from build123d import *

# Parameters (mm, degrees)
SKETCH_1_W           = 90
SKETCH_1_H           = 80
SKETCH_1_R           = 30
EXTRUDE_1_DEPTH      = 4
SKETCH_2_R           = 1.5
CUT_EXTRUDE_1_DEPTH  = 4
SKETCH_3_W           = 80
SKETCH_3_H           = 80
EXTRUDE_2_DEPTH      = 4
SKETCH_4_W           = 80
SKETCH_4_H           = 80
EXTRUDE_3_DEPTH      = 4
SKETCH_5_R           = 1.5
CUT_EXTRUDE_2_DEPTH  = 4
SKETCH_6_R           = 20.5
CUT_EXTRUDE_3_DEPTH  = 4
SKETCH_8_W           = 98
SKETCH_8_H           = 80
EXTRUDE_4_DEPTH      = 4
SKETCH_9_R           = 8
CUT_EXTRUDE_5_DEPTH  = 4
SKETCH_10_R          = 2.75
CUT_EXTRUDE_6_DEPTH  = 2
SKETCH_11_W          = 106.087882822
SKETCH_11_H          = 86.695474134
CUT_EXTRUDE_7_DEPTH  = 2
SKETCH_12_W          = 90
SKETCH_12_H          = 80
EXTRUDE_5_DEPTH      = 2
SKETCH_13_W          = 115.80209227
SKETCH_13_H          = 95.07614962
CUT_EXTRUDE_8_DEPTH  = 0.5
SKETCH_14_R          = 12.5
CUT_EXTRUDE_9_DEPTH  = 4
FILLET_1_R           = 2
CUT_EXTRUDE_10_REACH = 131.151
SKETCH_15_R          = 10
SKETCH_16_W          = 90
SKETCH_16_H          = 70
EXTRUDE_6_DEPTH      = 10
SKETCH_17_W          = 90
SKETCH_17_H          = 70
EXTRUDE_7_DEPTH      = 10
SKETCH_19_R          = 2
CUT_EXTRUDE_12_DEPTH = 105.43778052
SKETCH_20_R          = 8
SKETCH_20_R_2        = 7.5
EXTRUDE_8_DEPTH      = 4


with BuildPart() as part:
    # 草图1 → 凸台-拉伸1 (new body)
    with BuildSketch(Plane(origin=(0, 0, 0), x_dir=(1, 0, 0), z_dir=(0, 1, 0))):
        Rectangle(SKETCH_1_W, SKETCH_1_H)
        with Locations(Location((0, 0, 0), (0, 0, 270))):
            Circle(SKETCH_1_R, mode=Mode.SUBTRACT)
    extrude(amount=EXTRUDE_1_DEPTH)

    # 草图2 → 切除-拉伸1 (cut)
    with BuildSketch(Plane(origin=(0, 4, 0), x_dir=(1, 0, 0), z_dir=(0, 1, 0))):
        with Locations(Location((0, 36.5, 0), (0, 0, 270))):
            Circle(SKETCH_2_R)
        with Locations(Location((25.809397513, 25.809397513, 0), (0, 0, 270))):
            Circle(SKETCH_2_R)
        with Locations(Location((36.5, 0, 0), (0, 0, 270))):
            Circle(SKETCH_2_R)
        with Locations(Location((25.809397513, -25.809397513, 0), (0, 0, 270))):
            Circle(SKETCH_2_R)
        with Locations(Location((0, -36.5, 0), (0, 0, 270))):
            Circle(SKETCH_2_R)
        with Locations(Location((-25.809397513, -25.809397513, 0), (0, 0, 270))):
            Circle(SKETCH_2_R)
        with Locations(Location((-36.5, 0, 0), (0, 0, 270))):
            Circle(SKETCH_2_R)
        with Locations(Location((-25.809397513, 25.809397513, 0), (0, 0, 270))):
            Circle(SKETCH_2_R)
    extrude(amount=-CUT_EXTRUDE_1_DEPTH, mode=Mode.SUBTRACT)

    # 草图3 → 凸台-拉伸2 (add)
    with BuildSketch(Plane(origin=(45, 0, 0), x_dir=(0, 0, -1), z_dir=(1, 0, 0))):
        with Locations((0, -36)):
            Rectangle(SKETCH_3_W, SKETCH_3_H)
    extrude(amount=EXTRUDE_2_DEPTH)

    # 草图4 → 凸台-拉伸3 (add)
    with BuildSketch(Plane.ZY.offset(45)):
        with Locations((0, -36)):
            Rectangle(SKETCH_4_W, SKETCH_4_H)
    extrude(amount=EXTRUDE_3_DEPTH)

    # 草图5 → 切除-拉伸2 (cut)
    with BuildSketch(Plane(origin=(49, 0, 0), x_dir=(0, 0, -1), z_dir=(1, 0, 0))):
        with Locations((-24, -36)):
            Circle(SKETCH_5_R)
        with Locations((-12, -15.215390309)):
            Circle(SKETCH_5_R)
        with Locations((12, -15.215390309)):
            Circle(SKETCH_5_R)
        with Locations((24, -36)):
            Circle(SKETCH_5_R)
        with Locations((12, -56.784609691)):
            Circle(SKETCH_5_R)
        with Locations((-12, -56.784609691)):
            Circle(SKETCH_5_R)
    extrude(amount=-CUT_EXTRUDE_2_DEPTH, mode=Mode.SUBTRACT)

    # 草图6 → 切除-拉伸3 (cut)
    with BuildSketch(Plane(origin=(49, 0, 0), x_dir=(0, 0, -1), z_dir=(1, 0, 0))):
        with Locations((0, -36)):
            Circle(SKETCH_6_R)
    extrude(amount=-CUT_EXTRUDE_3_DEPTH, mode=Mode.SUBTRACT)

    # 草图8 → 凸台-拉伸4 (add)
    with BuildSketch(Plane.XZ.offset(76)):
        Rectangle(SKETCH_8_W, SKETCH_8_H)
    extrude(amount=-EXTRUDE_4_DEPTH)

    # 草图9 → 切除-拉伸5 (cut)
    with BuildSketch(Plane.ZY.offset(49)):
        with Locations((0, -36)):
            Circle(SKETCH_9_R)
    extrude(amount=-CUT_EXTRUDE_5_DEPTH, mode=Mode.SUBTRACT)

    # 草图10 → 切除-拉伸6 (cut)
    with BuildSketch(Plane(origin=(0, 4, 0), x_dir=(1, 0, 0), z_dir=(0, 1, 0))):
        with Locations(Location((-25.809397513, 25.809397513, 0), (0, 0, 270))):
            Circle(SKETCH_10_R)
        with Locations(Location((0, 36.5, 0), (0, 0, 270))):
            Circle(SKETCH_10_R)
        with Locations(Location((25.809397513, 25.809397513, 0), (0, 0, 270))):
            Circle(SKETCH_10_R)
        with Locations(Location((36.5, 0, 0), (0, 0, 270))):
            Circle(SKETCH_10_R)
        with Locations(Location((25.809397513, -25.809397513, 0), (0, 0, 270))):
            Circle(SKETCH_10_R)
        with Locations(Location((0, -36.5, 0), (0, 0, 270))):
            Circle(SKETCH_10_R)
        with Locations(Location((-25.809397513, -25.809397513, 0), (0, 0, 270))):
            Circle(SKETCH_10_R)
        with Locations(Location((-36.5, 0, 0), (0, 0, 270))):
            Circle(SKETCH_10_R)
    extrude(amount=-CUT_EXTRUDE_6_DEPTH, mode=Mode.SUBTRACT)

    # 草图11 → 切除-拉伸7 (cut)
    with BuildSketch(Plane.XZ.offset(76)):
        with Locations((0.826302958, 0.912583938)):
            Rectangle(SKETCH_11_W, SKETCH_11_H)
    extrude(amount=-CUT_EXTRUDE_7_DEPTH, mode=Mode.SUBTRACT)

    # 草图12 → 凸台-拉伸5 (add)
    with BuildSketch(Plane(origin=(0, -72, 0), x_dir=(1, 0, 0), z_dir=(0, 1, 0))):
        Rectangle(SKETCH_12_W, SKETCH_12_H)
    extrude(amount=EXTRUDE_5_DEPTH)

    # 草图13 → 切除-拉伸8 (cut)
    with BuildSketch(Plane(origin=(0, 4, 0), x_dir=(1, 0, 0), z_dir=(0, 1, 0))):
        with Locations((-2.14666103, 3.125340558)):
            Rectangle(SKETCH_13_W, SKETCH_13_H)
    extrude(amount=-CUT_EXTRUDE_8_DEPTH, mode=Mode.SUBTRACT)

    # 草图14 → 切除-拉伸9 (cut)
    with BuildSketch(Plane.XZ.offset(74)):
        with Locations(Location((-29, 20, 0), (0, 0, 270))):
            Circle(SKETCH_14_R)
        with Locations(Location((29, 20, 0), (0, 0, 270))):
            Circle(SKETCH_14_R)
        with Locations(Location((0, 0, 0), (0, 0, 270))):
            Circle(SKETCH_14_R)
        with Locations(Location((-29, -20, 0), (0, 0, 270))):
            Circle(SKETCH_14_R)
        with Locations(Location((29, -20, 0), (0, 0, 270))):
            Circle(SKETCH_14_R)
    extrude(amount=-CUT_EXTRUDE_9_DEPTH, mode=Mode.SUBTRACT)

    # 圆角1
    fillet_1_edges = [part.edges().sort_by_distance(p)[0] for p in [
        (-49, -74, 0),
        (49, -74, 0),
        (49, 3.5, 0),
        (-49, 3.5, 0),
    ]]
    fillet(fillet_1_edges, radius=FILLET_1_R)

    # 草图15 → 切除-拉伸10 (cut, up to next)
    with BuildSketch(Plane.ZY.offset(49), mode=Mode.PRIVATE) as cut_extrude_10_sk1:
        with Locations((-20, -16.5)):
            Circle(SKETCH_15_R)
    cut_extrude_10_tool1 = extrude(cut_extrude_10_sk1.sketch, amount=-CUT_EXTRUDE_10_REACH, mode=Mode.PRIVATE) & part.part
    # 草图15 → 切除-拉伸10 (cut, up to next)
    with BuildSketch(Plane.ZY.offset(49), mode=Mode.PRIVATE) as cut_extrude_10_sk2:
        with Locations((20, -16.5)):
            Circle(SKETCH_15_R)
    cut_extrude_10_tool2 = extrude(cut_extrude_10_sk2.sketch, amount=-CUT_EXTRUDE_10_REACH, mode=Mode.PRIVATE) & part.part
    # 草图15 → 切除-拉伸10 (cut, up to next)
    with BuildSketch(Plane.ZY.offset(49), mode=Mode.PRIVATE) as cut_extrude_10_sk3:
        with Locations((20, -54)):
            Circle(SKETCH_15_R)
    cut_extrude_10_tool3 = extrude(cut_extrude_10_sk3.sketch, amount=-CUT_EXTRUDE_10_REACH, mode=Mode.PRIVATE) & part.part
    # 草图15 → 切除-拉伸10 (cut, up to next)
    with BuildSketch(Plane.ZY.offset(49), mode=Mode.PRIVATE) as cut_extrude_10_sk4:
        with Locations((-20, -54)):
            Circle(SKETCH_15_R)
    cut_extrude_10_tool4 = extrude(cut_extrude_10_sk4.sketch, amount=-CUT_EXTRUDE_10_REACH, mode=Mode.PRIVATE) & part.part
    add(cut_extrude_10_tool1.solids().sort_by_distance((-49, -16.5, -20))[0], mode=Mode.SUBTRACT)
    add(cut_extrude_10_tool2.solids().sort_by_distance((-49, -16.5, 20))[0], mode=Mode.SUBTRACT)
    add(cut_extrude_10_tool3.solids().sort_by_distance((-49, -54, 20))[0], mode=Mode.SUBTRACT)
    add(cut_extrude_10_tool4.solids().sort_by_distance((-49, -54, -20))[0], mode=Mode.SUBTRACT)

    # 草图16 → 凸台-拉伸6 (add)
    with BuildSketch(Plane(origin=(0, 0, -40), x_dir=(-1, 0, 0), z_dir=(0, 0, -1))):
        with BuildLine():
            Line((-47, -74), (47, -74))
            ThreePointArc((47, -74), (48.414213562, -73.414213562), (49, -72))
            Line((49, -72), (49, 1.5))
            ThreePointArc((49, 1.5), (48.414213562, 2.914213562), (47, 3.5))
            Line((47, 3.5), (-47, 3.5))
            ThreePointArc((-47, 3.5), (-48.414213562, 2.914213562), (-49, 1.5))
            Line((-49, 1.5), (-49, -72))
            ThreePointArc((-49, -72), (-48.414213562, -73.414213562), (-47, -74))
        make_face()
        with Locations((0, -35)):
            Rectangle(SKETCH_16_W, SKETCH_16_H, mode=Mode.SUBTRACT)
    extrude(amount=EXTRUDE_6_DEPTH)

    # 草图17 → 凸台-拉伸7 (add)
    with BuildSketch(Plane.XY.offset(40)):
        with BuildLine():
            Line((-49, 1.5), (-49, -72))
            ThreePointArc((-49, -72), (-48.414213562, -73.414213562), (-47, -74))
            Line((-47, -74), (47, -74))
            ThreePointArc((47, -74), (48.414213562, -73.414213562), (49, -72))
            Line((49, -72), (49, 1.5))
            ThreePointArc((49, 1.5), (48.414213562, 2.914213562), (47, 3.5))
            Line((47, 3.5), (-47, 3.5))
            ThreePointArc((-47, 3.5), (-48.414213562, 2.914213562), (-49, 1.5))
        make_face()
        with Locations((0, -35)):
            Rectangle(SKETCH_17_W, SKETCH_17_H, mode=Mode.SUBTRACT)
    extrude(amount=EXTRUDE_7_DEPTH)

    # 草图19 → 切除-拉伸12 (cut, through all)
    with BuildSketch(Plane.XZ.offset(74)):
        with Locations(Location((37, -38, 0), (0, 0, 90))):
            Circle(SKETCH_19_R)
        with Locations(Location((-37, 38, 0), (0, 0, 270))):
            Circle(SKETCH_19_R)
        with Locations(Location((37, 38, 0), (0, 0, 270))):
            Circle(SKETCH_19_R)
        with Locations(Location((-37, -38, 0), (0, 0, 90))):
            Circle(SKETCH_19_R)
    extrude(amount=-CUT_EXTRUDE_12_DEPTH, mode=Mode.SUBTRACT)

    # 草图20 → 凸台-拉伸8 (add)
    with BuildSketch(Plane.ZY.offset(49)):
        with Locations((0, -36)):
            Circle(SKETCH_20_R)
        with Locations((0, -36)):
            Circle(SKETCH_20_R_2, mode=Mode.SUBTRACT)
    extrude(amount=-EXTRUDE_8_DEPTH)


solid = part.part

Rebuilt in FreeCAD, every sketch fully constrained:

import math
import FreeCAD as App
import Part
import Sketcher
from FreeCAD import Vector
Q = App.Units.Quantity


def edges_at(feature, points):
    """Names of the edges that pass closest to the given points."""
    edges = feature.Shape.Edges
    near = lambda p: min(range(len(edges)), key=lambda i: edges[i].distToShape(Part.Vertex(*p))[0])
    return sorted({f"Edge{near(p) + 1}" for p in points})


def add_polygon(sketch, points):
    """Adds a closed chain of lines whose ends are joined by coincident constraints."""
    first, n = sketch.GeometryCount, len(points)
    for a, b in zip(points, points[1:] + points[:1]):
        sketch.addGeometry(Part.LineSegment(App.Vector(*a, 0), App.Vector(*b, 0)), False)
    for i in range(n):
        sketch.addConstraint(Sketcher.Constraint("Coincident", first + i, 2, first + (i + 1) % n, 1))

doc = App.newDocument("Part")
body = doc.addObject("PartDesign::Body", "Body")

# Sketch on XZ plane
sketch1 = body.newObject("Sketcher::SketchObject", "Sketch")
sketch1.AttachmentSupport = (doc.getObject("XZ_Plane"), [""])
sketch1.MapMode = "FlatFace"
add_polygon(sketch1, [(-45, -40), (-45, 40), (45, 40), (45, -40)])  # lines 0-3
sketch1.addGeometry(Part.Circle(Vector(0, 0, 0), Vector(0, 0, 1), 30), False)  # 4
sketch1.addConstraint(Sketcher.Constraint("Vertical", 0))
sketch1.addConstraint(Sketcher.Constraint("Horizontal", 1))
sketch1.addConstraint(Sketcher.Constraint("Vertical", 2))
sketch1.addConstraint(Sketcher.Constraint("Horizontal", 3))
sketch1.addConstraint(Sketcher.Constraint("Coincident", 4, 3, -1, 1))
sketch1.addConstraint(Sketcher.Constraint("Symmetric", 0, 2, 2, 2, -1, 1))
sketch1.addConstraint(Sketcher.Constraint("Diameter", 4, Q("60 mm")))
sketch1.addConstraint(Sketcher.Constraint("DistanceX", 1, 1, 1, 2, Q("90 mm")))
sketch1.addConstraint(Sketcher.Constraint("DistanceY", 0, 1, 0, 2, Q("80 mm")))
pad1 = body.newObject("PartDesign::Pad", "Pad")
pad1.Profile = sketch1
pad1.Length = 4
pad1.Reversed = True

# Sketch on XZ plane
sketch2 = body.newObject("Sketcher::SketchObject", "Sketch001")
sketch2.AttachmentSupport = (doc.getObject("XZ_Plane"), [""])
sketch2.MapMode = "FlatFace"
sketch2.AttachmentOffset = App.Placement(Vector(0, 0, -4), App.Rotation())
sketch2.addGeometry(Part.Circle(Vector(0, -36.5, 0), Vector(0, 0, 1), 1.5), False)
sketch2.addGeometry(Part.Circle(Vector(25.8, -25.8, 0), Vector(0, 0, 1), 1.5), False)
sketch2.addGeometry(Part.Circle(Vector(36.5, 0, 0), Vector(0, 0, 1), 1.5), False)
sketch2.addGeometry(Part.Circle(Vector(25.8, 25.8, 0), Vector(0, 0, 1), 1.5), False)
sketch2.addGeometry(Part.Circle(Vector(0, 36.5, 0), Vector(0, 0, 1), 1.5), False)
sketch2.addGeometry(Part.Circle(Vector(-25.8, 25.8, 0), Vector(0, 0, 1), 1.5), False)
sketch2.addGeometry(Part.Circle(Vector(-36.5, 0, 0), Vector(0, 0, 1), 1.5), False)
sketch2.addGeometry(Part.Circle(Vector(-25.8, -25.8, 0), Vector(0, 0, 1), 1.5), False)
sketch2.addConstraint(Sketcher.Constraint("Equal", 0, 1))
sketch2.addConstraint(Sketcher.Constraint("Equal", 1, 2))
sketch2.addConstraint(Sketcher.Constraint("Equal", 2, 3))
sketch2.addConstraint(Sketcher.Constraint("Equal", 3, 4))
sketch2.addConstraint(Sketcher.Constraint("Equal", 4, 5))
sketch2.addConstraint(Sketcher.Constraint("Equal", 5, 6))
sketch2.addConstraint(Sketcher.Constraint("Equal", 6, 7))
sketch2.addConstraint(Sketcher.Constraint("Symmetric", 0, 3, 4, 3, -1, 1))
sketch2.addConstraint(Sketcher.Constraint("Symmetric", 1, 3, 5, 3, -1, 1))
sketch2.addConstraint(Sketcher.Constraint("Symmetric", 2, 3, 6, 3, -1, 1))
sketch2.addConstraint(Sketcher.Constraint("Symmetric", 3, 3, 7, 3, -1, 1))
sketch2.addConstraint(Sketcher.Constraint("Symmetric", 3, 3, 5, 3, -2))
sketch2.addConstraint(Sketcher.Constraint("PointOnObject", 0, 3, -2))
sketch2.addConstraint(Sketcher.Constraint("PointOnObject", 2, 3, -1))
sketch2.addConstraint(Sketcher.Constraint("Diameter", 0, Q("3 mm")))
sketch2.addConstraint(Sketcher.Constraint("DistanceY", 0, 3, 4, 3, Q("73 mm")))
sketch2.addConstraint(Sketcher.Constraint("DistanceX", -1, 1, 2, 3, Q("36.5 mm")))
sketch2.addConstraint(Sketcher.Constraint("DistanceX", -1, 1, 1, 3, Q("25.809398 mm")))
sketch2.addConstraint(Sketcher.Constraint("DistanceY", 1, 3, -1, 1, Q("25.809398 mm")))
pocket1 = body.newObject("PartDesign::Pocket", "Pocket")
pocket1.Profile = sketch2
pocket1.Length = 4
pocket1.Reversed = True

# Sketch on YZ plane
sketch3 = body.newObject("Sketcher::SketchObject", "Sketch002")
sketch3.AttachmentSupport = (doc.getObject("YZ_Plane"), [""])
sketch3.MapMode = "FlatFace"
sketch3.AttachmentOffset = App.Placement(Vector(0, 0, 45), App.Rotation())
add_polygon(sketch3, [(4, 40), (-76, 40), (-76, -40), (4, -40)])  # lines 0-3
sketch3.addConstraint(Sketcher.Constraint("Horizontal", 0))
sketch3.addConstraint(Sketcher.Constraint("Vertical", 1))
sketch3.addConstraint(Sketcher.Constraint("Horizontal", 2))
sketch3.addConstraint(Sketcher.Constraint("Vertical", 3))
sketch3.addConstraint(Sketcher.Constraint("Equal", 2, 1))
sketch3.addConstraint(Sketcher.Constraint("DistanceX", 0, 2, 0, 1, Q("80 mm")))
sketch3.addConstraint(Sketcher.Constraint("DistanceX", 0, 2, -1, 1, Q("76 mm")))
sketch3.addConstraint(Sketcher.Constraint("DistanceY", -1, 1, 0, 2, Q("40 mm")))
pad2 = body.newObject("PartDesign::Pad", "Pad001")
pad2.Profile = sketch3
pad2.Length = 4

# Sketch on YZ plane
sketch4 = body.newObject("Sketcher::SketchObject", "Sketch003")
sketch4.AttachmentSupport = (doc.getObject("YZ_Plane"), [""])
sketch4.MapMode = "FlatFace"
sketch4.AttachmentOffset = App.Placement(Vector(0, 0, -45), App.Rotation())
add_polygon(sketch4, [(4, -40), (-76, -40), (-76, 40), (4, 40)])  # lines 0-3
sketch4.addConstraint(Sketcher.Constraint("Horizontal", 0))
sketch4.addConstraint(Sketcher.Constraint("Vertical", 1))
sketch4.addConstraint(Sketcher.Constraint("Horizontal", 2))
sketch4.addConstraint(Sketcher.Constraint("Vertical", 3))
sketch4.addConstraint(Sketcher.Constraint("Equal", 2, 1))
sketch4.addConstraint(Sketcher.Constraint("DistanceX", 0, 2, 0, 1, Q("80 mm")))
sketch4.addConstraint(Sketcher.Constraint("DistanceX", 0, 2, -1, 1, Q("76 mm")))
sketch4.addConstraint(Sketcher.Constraint("DistanceY", 0, 2, -1, 1, Q("40 mm")))
pad3 = body.newObject("PartDesign::Pad", "Pad002")
pad3.Profile = sketch4
pad3.Length = 4
pad3.Reversed = True

# Sketch on YZ plane
sketch5 = body.newObject("Sketcher::SketchObject", "Sketch004")
sketch5.AttachmentSupport = (doc.getObject("YZ_Plane"), [""])
sketch5.MapMode = "FlatFace"
sketch5.AttachmentOffset = App.Placement(Vector(0, 0, 49), App.Rotation())
sketch5.addGeometry(Part.Circle(Vector(-36, 24, 0), Vector(0, 0, 1), 1.5), False)
sketch5.addGeometry(Part.Circle(Vector(-15.2, 12, 0), Vector(0, 0, 1), 1.5), False)
sketch5.addGeometry(Part.Circle(Vector(-15.2, -12, 0), Vector(0, 0, 1), 1.5), False)
sketch5.addGeometry(Part.Circle(Vector(-36, -24, 0), Vector(0, 0, 1), 1.5), False)
sketch5.addGeometry(Part.Circle(Vector(-56.8, -12, 0), Vector(0, 0, 1), 1.5), False)
sketch5.addGeometry(Part.Circle(Vector(-56.8, 12, 0), Vector(0, 0, 1), 1.5), False)
sketch5.addConstraint(Sketcher.Constraint("Equal", 0, 1))
sketch5.addConstraint(Sketcher.Constraint("Equal", 1, 2))
sketch5.addConstraint(Sketcher.Constraint("Equal", 2, 3))
sketch5.addConstraint(Sketcher.Constraint("Equal", 3, 4))
sketch5.addConstraint(Sketcher.Constraint("Equal", 4, 5))
sketch5.addConstraint(Sketcher.Constraint("Symmetric", 1, 3, 2, 3, -1))
sketch5.addConstraint(Sketcher.Constraint("Symmetric", 0, 3, 3, 3, -1))
sketch5.addConstraint(Sketcher.Constraint("Symmetric", 4, 3, 5, 3, -1))
sketch5.addConstraint(Sketcher.Constraint("Horizontal", 2, 3, 4, 3))
sketch5.addConstraint(Sketcher.Constraint("Diameter", 0, Q("3 mm")))
sketch5.addConstraint(Sketcher.Constraint("DistanceX", 0, 3, -1, 1, Q("36 mm")))
sketch5.addConstraint(Sketcher.Constraint("DistanceY", -1, 1, 0, 3, Q("24 mm")))
sketch5.addConstraint(Sketcher.Constraint("DistanceY", -1, 1, 1, 3, Q("12 mm")))
sketch5.addConstraint(Sketcher.Constraint("DistanceX", 1, 3, -1, 1, Q("15.21539 mm")))
sketch5.addConstraint(Sketcher.Constraint("DistanceX", 4, 3, -1, 1, Q("56.78461 mm")))
pocket2 = body.newObject("PartDesign::Pocket", "Pocket001")
pocket2.Profile = sketch5
pocket2.Length = 4

# Sketch on YZ plane
sketch6 = body.newObject("Sketcher::SketchObject", "Sketch005")
sketch6.AttachmentSupport = (doc.getObject("YZ_Plane"), [""])
sketch6.MapMode = "FlatFace"
sketch6.AttachmentOffset = App.Placement(Vector(0, 0, 49), App.Rotation())
sketch6.addGeometry(Part.Circle(Vector(-36, 0, 0), Vector(0, 0, 1), 20), False)
sketch6.addConstraint(Sketcher.Constraint("PointOnObject", 0, 3, -1))
sketch6.addConstraint(Sketcher.Constraint("Diameter", 0, Q("41 mm")))
sketch6.addConstraint(Sketcher.Constraint("DistanceX", 0, 3, -1, 1, Q("36 mm")))
pocket3 = body.newObject("PartDesign::Pocket", "Pocket002")
pocket3.Profile = sketch6
pocket3.Length = 4

# Sketch on XZ plane
sketch7 = body.newObject("Sketcher::SketchObject", "Sketch006")
sketch7.AttachmentSupport = (doc.getObject("XZ_Plane"), [""])
sketch7.MapMode = "FlatFace"
sketch7.AttachmentOffset = App.Placement(Vector(0, 0, 76), App.Rotation())
add_polygon(sketch7, [(-49, 40), (-49, -40), (49, -40), (49, 40)])  # lines 0-3
sketch7.addConstraint(Sketcher.Constraint("Vertical", 0))
sketch7.addConstraint(Sketcher.Constraint("Horizontal", 1))
sketch7.addConstraint(Sketcher.Constraint("Vertical", 2))
sketch7.addConstraint(Sketcher.Constraint("Horizontal", 3))
sketch7.addConstraint(Sketcher.Constraint("Symmetric", 0, 2, 2, 2, -1, 1))
sketch7.addConstraint(Sketcher.Constraint("DistanceX", 1, 1, 1, 2, Q("98 mm")))
sketch7.addConstraint(Sketcher.Constraint("DistanceY", 0, 2, 0, 1, Q("80 mm")))
pad4 = body.newObject("PartDesign::Pad", "Pad003")
pad4.Profile = sketch7
pad4.Length = 4
pad4.Reversed = True

# Sketch on YZ plane
sketch8 = body.newObject("Sketcher::SketchObject", "Sketch007")
sketch8.AttachmentSupport = (doc.getObject("YZ_Plane"), [""])
sketch8.MapMode = "FlatFace"
sketch8.AttachmentOffset = App.Placement(Vector(0, 0, -49), App.Rotation())
sketch8.addGeometry(Part.Circle(Vector(-36, 0, 0), Vector(0, 0, 1), 8), False)
sketch8.addConstraint(Sketcher.Constraint("PointOnObject", 0, 3, -1))
sketch8.addConstraint(Sketcher.Constraint("Diameter", 0, Q("16 mm")))
sketch8.addConstraint(Sketcher.Constraint("DistanceX", 0, 3, -1, 1, Q("36 mm")))
pocket4 = body.newObject("PartDesign::Pocket", "Pocket003")
pocket4.Profile = sketch8
pocket4.Length = 4
pocket4.Reversed = True

# Sketch on XZ plane
sketch9 = body.newObject("Sketcher::SketchObject", "Sketch008")
sketch9.AttachmentSupport = (doc.getObject("XZ_Plane"), [""])
sketch9.MapMode = "FlatFace"
sketch9.AttachmentOffset = App.Placement(Vector(0, 0, -4), App.Rotation())
sketch9.addGeometry(Part.Circle(Vector(-25.8, -25.8, 0), Vector(0, 0, 1), 2.8), False)
sketch9.addGeometry(Part.Circle(Vector(0, -36.5, 0), Vector(0, 0, 1), 2.8), False)
sketch9.addGeometry(Part.Circle(Vector(25.8, -25.8, 0), Vector(0, 0, 1), 2.8), False)
sketch9.addGeometry(Part.Circle(Vector(36.5, 0, 0), Vector(0, 0, 1), 2.8), False)
sketch9.addGeometry(Part.Circle(Vector(25.8, 25.8, 0), Vector(0, 0, 1), 2.8), False)
sketch9.addGeometry(Part.Circle(Vector(0, 36.5, 0), Vector(0, 0, 1), 2.8), False)
sketch9.addGeometry(Part.Circle(Vector(-25.8, 25.8, 0), Vector(0, 0, 1), 2.8), False)
sketch9.addGeometry(Part.Circle(Vector(-36.5, 0, 0), Vector(0, 0, 1), 2.8), False)
sketch9.addConstraint(Sketcher.Constraint("Equal", 0, 1))
sketch9.addConstraint(Sketcher.Constraint("Equal", 1, 2))
sketch9.addConstraint(Sketcher.Constraint("Equal", 2, 3))
sketch9.addConstraint(Sketcher.Constraint("Equal", 3, 4))
sketch9.addConstraint(Sketcher.Constraint("Equal", 4, 5))
sketch9.addConstraint(Sketcher.Constraint("Equal", 5, 6))
sketch9.addConstraint(Sketcher.Constraint("Equal", 6, 7))
sketch9.addConstraint(Sketcher.Constraint("Symmetric", 0, 3, 4, 3, -1, 1))
sketch9.addConstraint(Sketcher.Constraint("Symmetric", 1, 3, 5, 3, -1, 1))
sketch9.addConstraint(Sketcher.Constraint("Symmetric", 2, 3, 6, 3, -1, 1))
sketch9.addConstraint(Sketcher.Constraint("Symmetric", 3, 3, 7, 3, -1, 1))
sketch9.addConstraint(Sketcher.Constraint("Symmetric", 0, 3, 2, 3, -2))
sketch9.addConstraint(Sketcher.Constraint("PointOnObject", 1, 3, -2))
sketch9.addConstraint(Sketcher.Constraint("PointOnObject", 3, 3, -1))
sketch9.addConstraint(Sketcher.Constraint("Diameter", 0, Q("5.5 mm")))
sketch9.addConstraint(Sketcher.Constraint("DistanceY", 1, 3, 5, 3, Q("73 mm")))
sketch9.addConstraint(Sketcher.Constraint("DistanceX", -1, 1, 3, 3, Q("36.5 mm")))
sketch9.addConstraint(Sketcher.Constraint("DistanceX", 0, 3, -1, 1, Q("25.809398 mm")))
sketch9.addConstraint(Sketcher.Constraint("DistanceY", 0, 3, -1, 1, Q("25.809398 mm")))
pocket5 = body.newObject("PartDesign::Pocket", "Pocket004")
pocket5.Profile = sketch9
pocket5.Length = 2
pocket5.Reversed = True

# Sketch on XZ plane
sketch10 = body.newObject("Sketcher::SketchObject", "Sketch009")
sketch10.AttachmentSupport = (doc.getObject("XZ_Plane"), [""])
sketch10.MapMode = "FlatFace"
sketch10.AttachmentOffset = App.Placement(Vector(0, 0, 76), App.Rotation())
add_polygon(sketch10, [(-52, 44), (-52, -42), (54, -42), (54, 44)])  # lines 0-3
sketch10.addConstraint(Sketcher.Constraint("Vertical", 0))
sketch10.addConstraint(Sketcher.Constraint("Horizontal", 1))
sketch10.addConstraint(Sketcher.Constraint("Vertical", 2))
sketch10.addConstraint(Sketcher.Constraint("Horizontal", 3))
sketch10.addConstraint(Sketcher.Constraint("DistanceX", 1, 1, 1, 2, Q("106.087883 mm")))
sketch10.addConstraint(Sketcher.Constraint("DistanceY", 0, 2, 0, 1, Q("86.695474 mm")))
sketch10.addConstraint(Sketcher.Constraint("DistanceX", 0, 2, -1, 1, Q("52.217638 mm")))
sketch10.addConstraint(Sketcher.Constraint("DistanceY", -1, 1, 2, 2, Q("44.260321 mm")))
pocket6 = body.newObject("PartDesign::Pocket", "Pocket005")
pocket6.Profile = sketch10
pocket6.Length = 2

# Sketch on XZ plane
sketch11 = body.newObject("Sketcher::SketchObject", "Sketch010")
sketch11.AttachmentSupport = (doc.getObject("XZ_Plane"), [""])
sketch11.MapMode = "FlatFace"
sketch11.AttachmentOffset = App.Placement(Vector(0, 0, 72), App.Rotation())
add_polygon(sketch11, [(-45, -40), (-45, 40), (45, 40), (45, -40)])  # lines 0-3
sketch11.addConstraint(Sketcher.Constraint("Vertical", 0))
sketch11.addConstraint(Sketcher.Constraint("Horizontal", 1))
sketch11.addConstraint(Sketcher.Constraint("Vertical", 2))
sketch11.addConstraint(Sketcher.Constraint("Horizontal", 3))
sketch11.addConstraint(Sketcher.Constraint("Symmetric", 0, 2, 2, 2, -1, 1))
sketch11.addConstraint(Sketcher.Constraint("DistanceX", 1, 1, 1, 2, Q("90 mm")))
sketch11.addConstraint(Sketcher.Constraint("DistanceY", 0, 1, 0, 2, Q("80 mm")))
pad5 = body.newObject("PartDesign::Pad", "Pad004")
pad5.Profile = sketch11
pad5.Length = 2
pad5.Reversed = True

# Sketch on XZ plane
sketch12 = body.newObject("Sketcher::SketchObject", "Sketch011")
sketch12.AttachmentSupport = (doc.getObject("XZ_Plane"), [""])
sketch12.MapMode = "FlatFace"
sketch12.AttachmentOffset = App.Placement(Vector(0, 0, -4), App.Rotation())
add_polygon(sketch12, [(-60, -51), (-60, 44), (56, 44), (56, -51)])  # lines 0-3
sketch12.addConstraint(Sketcher.Constraint("Vertical", 0))
sketch12.addConstraint(Sketcher.Constraint("Horizontal", 1))
sketch12.addConstraint(Sketcher.Constraint("Vertical", 2))
sketch12.addConstraint(Sketcher.Constraint("Horizontal", 3))
sketch12.addConstraint(Sketcher.Constraint("DistanceY", 0, 1, 0, 2, Q("95.07615 mm")))
sketch12.addConstraint(Sketcher.Constraint("DistanceX", 1, 1, 1, 2, Q("115.802092 mm")))
sketch12.addConstraint(Sketcher.Constraint("DistanceX", 0, 2, -1, 1, Q("60.047707 mm")))
sketch12.addConstraint(Sketcher.Constraint("DistanceY", -1, 1, 0, 2, Q("44.412734 mm")))
pocket7 = body.newObject("PartDesign::Pocket", "Pocket006")
pocket7.Profile = sketch12
pocket7.Length = 0.5
pocket7.Reversed = True

# Sketch on XZ plane
sketch13 = body.newObject("Sketcher::SketchObject", "Sketch012")
sketch13.AttachmentSupport = (doc.getObject("XZ_Plane"), [""])
sketch13.MapMode = "FlatFace"
sketch13.AttachmentOffset = App.Placement(Vector(0, 0, 74), App.Rotation())
sketch13.addGeometry(Part.Circle(Vector(-29, 20, 0), Vector(0, 0, 1), 12), False)
sketch13.addGeometry(Part.Circle(Vector(29, 20, 0), Vector(0, 0, 1), 12), False)
sketch13.addGeometry(Part.Circle(Vector(0, 0, 0), Vector(0, 0, 1), 12), False)
sketch13.addGeometry(Part.Circle(Vector(-29, -20, 0), Vector(0, 0, 1), 12), False)
sketch13.addGeometry(Part.Circle(Vector(29, -20, 0), Vector(0, 0, 1), 12), False)
sketch13.addConstraint(Sketcher.Constraint("Coincident", 2, 3, -1, 1))
sketch13.addConstraint(Sketcher.Constraint("Equal", 0, 1))
sketch13.addConstraint(Sketcher.Constraint("Equal", 1, 2))
sketch13.addConstraint(Sketcher.Constraint("Equal", 2, 3))
sketch13.addConstraint(Sketcher.Constraint("Equal", 3, 4))
sketch13.addConstraint(Sketcher.Constraint("Symmetric", 1, 3, 3, 3, -1, 1))
sketch13.addConstraint(Sketcher.Constraint("Symmetric", 0, 3, 4, 3, -1, 1))
sketch13.addConstraint(Sketcher.Constraint("Symmetric", 0, 3, 1, 3, -2))
sketch13.addConstraint(Sketcher.Constraint("Diameter", 0, Q("25 mm")))
sketch13.addConstraint(Sketcher.Constraint("DistanceX", 0, 3, -1, 1, Q("29 mm")))
sketch13.addConstraint(Sketcher.Constraint("DistanceY", -1, 1, 0, 3, Q("20 mm")))
pocket8 = body.newObject("PartDesign::Pocket", "Pocket007")
pocket8.Profile = sketch13
pocket8.Length = 4
doc.recompute()

fillet = body.newObject("PartDesign::Fillet", "Fillet")
fillet.Base = (pocket8, edges_at(pocket8, [
    (-49, -74, 0),
    (49, -74, 0),
    (49, 3.5, 0),
    (-49, 3.5, 0),
]))
fillet.Radius = 2

# Sketch on YZ plane
sketch14 = body.newObject("Sketcher::SketchObject", "Sketch013")
sketch14.AttachmentSupport = (doc.getObject("YZ_Plane"), [""])
sketch14.MapMode = "FlatFace"
sketch14.AttachmentOffset = App.Placement(Vector(0, 0, -49), App.Rotation())
sketch14.addGeometry(Part.Circle(Vector(-16, -20, 0), Vector(0, 0, 1), 10), False)
sketch14.addConstraint(Sketcher.Constraint("Diameter", 0, Q("20 mm")))
sketch14.addConstraint(Sketcher.Constraint("DistanceY", 0, 3, -1, 1, Q("20 mm")))
sketch14.addConstraint(Sketcher.Constraint("DistanceX", 0, 3, -1, 1, Q("16.5 mm")))
pocket9 = body.newObject("PartDesign::Pocket", "Pocket008")
pocket9.Profile = sketch14
pocket9.Type = "UpToFirst"
pocket9.Reversed = True

# Sketch on YZ plane
sketch15 = body.newObject("Sketcher::SketchObject", "Sketch014")
sketch15.AttachmentSupport = (doc.getObject("YZ_Plane"), [""])
sketch15.MapMode = "FlatFace"
sketch15.AttachmentOffset = App.Placement(Vector(0, 0, -49), App.Rotation())
sketch15.addGeometry(Part.Circle(Vector(-16, 20, 0), Vector(0, 0, 1), 10), False)
sketch15.addConstraint(Sketcher.Constraint("Diameter", 0, Q("20 mm")))
sketch15.addConstraint(Sketcher.Constraint("DistanceY", -1, 1, 0, 3, Q("20 mm")))
sketch15.addConstraint(Sketcher.Constraint("DistanceX", 0, 3, -1, 1, Q("16.5 mm")))
pocket10 = body.newObject("PartDesign::Pocket", "Pocket009")
pocket10.Profile = sketch15
pocket10.Type = "UpToFirst"
pocket10.Reversed = True

# Sketch on YZ plane
sketch16 = body.newObject("Sketcher::SketchObject", "Sketch015")
sketch16.AttachmentSupport = (doc.getObject("YZ_Plane"), [""])
sketch16.MapMode = "FlatFace"
sketch16.AttachmentOffset = App.Placement(Vector(0, 0, -49), App.Rotation())
sketch16.addGeometry(Part.Circle(Vector(-54, 20, 0), Vector(0, 0, 1), 10), False)
sketch16.addConstraint(Sketcher.Constraint("Diameter", 0, Q("20 mm")))
sketch16.addConstraint(Sketcher.Constraint("DistanceX", 0, 3, -1, 1, Q("54 mm")))
sketch16.addConstraint(Sketcher.Constraint("DistanceY", -1, 1, 0, 3, Q("20 mm")))
pocket11 = body.newObject("PartDesign::Pocket", "Pocket010")
pocket11.Profile = sketch16
pocket11.Type = "UpToFirst"
pocket11.Reversed = True

# Sketch on YZ plane
sketch17 = body.newObject("Sketcher::SketchObject", "Sketch016")
sketch17.AttachmentSupport = (doc.getObject("YZ_Plane"), [""])
sketch17.MapMode = "FlatFace"
sketch17.AttachmentOffset = App.Placement(Vector(0, 0, -49), App.Rotation())
sketch17.addGeometry(Part.Circle(Vector(-54, -20, 0), Vector(0, 0, 1), 10), False)
sketch17.addConstraint(Sketcher.Constraint("Diameter", 0, Q("20 mm")))
sketch17.addConstraint(Sketcher.Constraint("DistanceX", 0, 3, -1, 1, Q("54 mm")))
sketch17.addConstraint(Sketcher.Constraint("DistanceY", 0, 3, -1, 1, Q("20 mm")))
pocket12 = body.newObject("PartDesign::Pocket", "Pocket011")
pocket12.Profile = sketch17
pocket12.Type = "UpToFirst"
pocket12.Reversed = True

# Sketch on XY plane
sketch18 = body.newObject("Sketcher::SketchObject", "Sketch017")
sketch18.AttachmentSupport = (doc.getObject("XY_Plane"), [""])
sketch18.MapMode = "FlatFace"
sketch18.AttachmentOffset = App.Placement(Vector(0, 0, -40), App.Rotation())
sketch18.addGeometry(Part.LineSegment(Vector(47, -74, 0), Vector(-47, -74, 0)), False)  # 0
sketch18.addGeometry(Part.ArcOfCircle(Part.Circle(Vector(-47, -72, 0), Vector(0, 0, 1), 2), math.radians(-180), math.radians(-90)), False)  # 1
sketch18.addGeometry(Part.LineSegment(Vector(-49, -72, 0), Vector(-49, 1.5, 0)), False)  # 2
sketch18.addGeometry(Part.ArcOfCircle(Part.Circle(Vector(-47, 1.5, 0), Vector(0, 0, 1), 2), math.radians(90), math.radians(180)), False)  # 3
sketch18.addGeometry(Part.LineSegment(Vector(-47, 3.5, 0), Vector(47, 3.5, 0)), False)  # 4
sketch18.addGeometry(Part.ArcOfCircle(Part.Circle(Vector(47, 1.5, 0), Vector(0, 0, 1), 2), math.radians(0), math.radians(90)), False)  # 5
sketch18.addGeometry(Part.LineSegment(Vector(49, 1.5, 0), Vector(49, -72, 0)), False)  # 6
sketch18.addGeometry(Part.ArcOfCircle(Part.Circle(Vector(47, -72, 0), Vector(0, 0, 1), 2), math.radians(-90), math.radians(0)), False)  # 7
add_polygon(sketch18, [(-45, -70), (45, -70), (45, 0), (-45, 0)])  # lines 8-11
sketch18.addConstraint(Sketcher.Constraint("Tangent", 0, 2, 1, 2))
sketch18.addConstraint(Sketcher.Constraint("Tangent", 1, 1, 2, 1))
sketch18.addConstraint(Sketcher.Constraint("Tangent", 2, 2, 3, 2))
sketch18.addConstraint(Sketcher.Constraint("Tangent", 3, 1, 4, 1))
sketch18.addConstraint(Sketcher.Constraint("Tangent", 4, 2, 5, 2))
sketch18.addConstraint(Sketcher.Constraint("Tangent", 5, 1, 6, 1))
sketch18.addConstraint(Sketcher.Constraint("Tangent", 6, 2, 7, 2))
sketch18.addConstraint(Sketcher.Constraint("Tangent", 7, 1, 0, 1))
sketch18.addConstraint(Sketcher.Constraint("Horizontal", 0))
sketch18.addConstraint(Sketcher.Constraint("Vertical", 2))
sketch18.addConstraint(Sketcher.Constraint("Horizontal", 4))
sketch18.addConstraint(Sketcher.Constraint("Vertical", 6))
sketch18.addConstraint(Sketcher.Constraint("Horizontal", 8))
sketch18.addConstraint(Sketcher.Constraint("Vertical", 9))
sketch18.addConstraint(Sketcher.Constraint("Horizontal", 10))
sketch18.addConstraint(Sketcher.Constraint("Vertical", 11))
sketch18.addConstraint(Sketcher.Constraint("Equal", 1, 3))
sketch18.addConstraint(Sketcher.Constraint("Equal", 3, 5))
sketch18.addConstraint(Sketcher.Constraint("Equal", 5, 7))
sketch18.addConstraint(Sketcher.Constraint("Symmetric", 9, 2, 10, 2, -1, 1))
sketch18.addConstraint(Sketcher.Constraint("Radius", 1, Q("2 mm")))
sketch18.addConstraint(Sketcher.Constraint("DistanceX", 0, 2, 0, 1, Q("94 mm")))
sketch18.addConstraint(Sketcher.Constraint("DistanceX", 8, 1, 8, 2, Q("90 mm")))
sketch18.addConstraint(Sketcher.Constraint("DistanceY", 9, 1, 9, 2, Q("70 mm")))
sketch18.addConstraint(Sketcher.Constraint("DistanceY", 2, 1, 2, 2, Q("73.5 mm")))
sketch18.addConstraint(Sketcher.Constraint("DistanceX", 1, 3, -1, 1, Q("47 mm")))
sketch18.addConstraint(Sketcher.Constraint("DistanceY", 1, 3, -1, 1, Q("72 mm")))
pad6 = body.newObject("PartDesign::Pad", "Pad005")
pad6.Profile = sketch18
pad6.Length = 10
pad6.Reversed = True

# Sketch on XY plane
sketch19 = body.newObject("Sketcher::SketchObject", "Sketch018")
sketch19.AttachmentSupport = (doc.getObject("XY_Plane"), [""])
sketch19.MapMode = "FlatFace"
sketch19.AttachmentOffset = App.Placement(Vector(0, 0, 40), App.Rotation())
sketch19.addGeometry(Part.LineSegment(Vector(-49, 1.5, 0), Vector(-49, -72, 0)), False)  # 0
sketch19.addGeometry(Part.ArcOfCircle(Part.Circle(Vector(-47, -72, 0), Vector(0, 0, 1), 2), math.radians(-180), math.radians(-90)), False)  # 1
sketch19.addGeometry(Part.LineSegment(Vector(-47, -74, 0), Vector(47, -74, 0)), False)  # 2
sketch19.addGeometry(Part.ArcOfCircle(Part.Circle(Vector(47, -72, 0), Vector(0, 0, 1), 2), math.radians(-90), math.radians(0)), False)  # 3
sketch19.addGeometry(Part.LineSegment(Vector(49, -72, 0), Vector(49, 1.5, 0)), False)  # 4
sketch19.addGeometry(Part.ArcOfCircle(Part.Circle(Vector(47, 1.5, 0), Vector(0, 0, 1), 2), math.radians(0), math.radians(90)), False)  # 5
sketch19.addGeometry(Part.LineSegment(Vector(47, 3.5, 0), Vector(-47, 3.5, 0)), False)  # 6
sketch19.addGeometry(Part.ArcOfCircle(Part.Circle(Vector(-47, 1.5, 0), Vector(0, 0, 1), 2), math.radians(90), math.radians(180)), False)  # 7
add_polygon(sketch19, [(45, -70), (-45, -70), (-45, 0), (45, 0)])  # lines 8-11
sketch19.addConstraint(Sketcher.Constraint("Tangent", 0, 2, 1, 1))
sketch19.addConstraint(Sketcher.Constraint("Tangent", 1, 2, 2, 1))
sketch19.addConstraint(Sketcher.Constraint("Tangent", 2, 2, 3, 1))
sketch19.addConstraint(Sketcher.Constraint("Tangent", 3, 2, 4, 1))
sketch19.addConstraint(Sketcher.Constraint("Tangent", 4, 2, 5, 1))
sketch19.addConstraint(Sketcher.Constraint("Tangent", 5, 2, 6, 1))
sketch19.addConstraint(Sketcher.Constraint("Tangent", 6, 2, 7, 1))
sketch19.addConstraint(Sketcher.Constraint("Tangent", 7, 2, 0, 1))
sketch19.addConstraint(Sketcher.Constraint("Vertical", 0))
sketch19.addConstraint(Sketcher.Constraint("Horizontal", 2))
sketch19.addConstraint(Sketcher.Constraint("Vertical", 4))
sketch19.addConstraint(Sketcher.Constraint("Horizontal", 6))
sketch19.addConstraint(Sketcher.Constraint("Horizontal", 8))
sketch19.addConstraint(Sketcher.Constraint("Vertical", 9))
sketch19.addConstraint(Sketcher.Constraint("Horizontal", 10))
sketch19.addConstraint(Sketcher.Constraint("Vertical", 11))
sketch19.addConstraint(Sketcher.Constraint("Equal", 1, 3))
sketch19.addConstraint(Sketcher.Constraint("Equal", 3, 5))
sketch19.addConstraint(Sketcher.Constraint("Equal", 5, 7))
sketch19.addConstraint(Sketcher.Constraint("Symmetric", 9, 2, 10, 2, -1, 1))
sketch19.addConstraint(Sketcher.Constraint("Radius", 1, Q("2 mm")))
sketch19.addConstraint(Sketcher.Constraint("DistanceX", 2, 1, 2, 2, Q("94 mm")))
sketch19.addConstraint(Sketcher.Constraint("DistanceX", 8, 2, 8, 1, Q("90 mm")))
sketch19.addConstraint(Sketcher.Constraint("DistanceY", 9, 1, 9, 2, Q("70 mm")))
sketch19.addConstraint(Sketcher.Constraint("DistanceY", 0, 2, 0, 1, Q("73.5 mm")))
sketch19.addConstraint(Sketcher.Constraint("DistanceX", 1, 3, -1, 1, Q("47 mm")))
sketch19.addConstraint(Sketcher.Constraint("DistanceY", 1, 3, -1, 1, Q("72 mm")))
pad7 = body.newObject("PartDesign::Pad", "Pad006")
pad7.Profile = sketch19
pad7.Length = 10

# Sketch on XZ plane
sketch20 = body.newObject("Sketcher::SketchObject", "Sketch019")
sketch20.AttachmentSupport = (doc.getObject("XZ_Plane"), [""])
sketch20.MapMode = "FlatFace"
sketch20.AttachmentOffset = App.Placement(Vector(0, 0, 74), App.Rotation())
sketch20.addGeometry(Part.Circle(Vector(37, -38, 0), Vector(0, 0, 1), 2), False)
sketch20.addGeometry(Part.Circle(Vector(-37, 38, 0), Vector(0, 0, 1), 2), False)
sketch20.addGeometry(Part.Circle(Vector(37, 38, 0), Vector(0, 0, 1), 2), False)
sketch20.addGeometry(Part.Circle(Vector(-37, -38, 0), Vector(0, 0, 1), 2), False)
sketch20.addConstraint(Sketcher.Constraint("Equal", 0, 1))
sketch20.addConstraint(Sketcher.Constraint("Equal", 1, 2))
sketch20.addConstraint(Sketcher.Constraint("Equal", 2, 3))
sketch20.addConstraint(Sketcher.Constraint("Symmetric", 0, 3, 1, 3, -1, 1))
sketch20.addConstraint(Sketcher.Constraint("Symmetric", 2, 3, 3, 3, -1, 1))
sketch20.addConstraint(Sketcher.Constraint("Symmetric", 1, 3, 2, 3, -2))
sketch20.addConstraint(Sketcher.Constraint("Diameter", 0, Q("4 mm")))
sketch20.addConstraint(Sketcher.Constraint("DistanceX", -1, 1, 0, 3, Q("37 mm")))
sketch20.addConstraint(Sketcher.Constraint("DistanceY", 0, 3, -1, 1, Q("38 mm")))
pocket13 = body.newObject("PartDesign::Pocket", "Pocket012")
pocket13.Profile = sketch20
pocket13.Type = "ThroughAll"

# Sketch on YZ plane
sketch21 = body.newObject("Sketcher::SketchObject", "Sketch020")
sketch21.AttachmentSupport = (doc.getObject("YZ_Plane"), [""])
sketch21.MapMode = "FlatFace"
sketch21.AttachmentOffset = App.Placement(Vector(0, 0, -49), App.Rotation())
sketch21.addGeometry(Part.Circle(Vector(-36, 0, 0), Vector(0, 0, 1), 8), False)
sketch21.addGeometry(Part.Circle(Vector(-36, 0, 0), Vector(0, 0, 1), 8), False)
sketch21.addConstraint(Sketcher.Constraint("Coincident", 1, 3, 0, 3))
sketch21.addConstraint(Sketcher.Constraint("PointOnObject", 0, 3, -1))
sketch21.addConstraint(Sketcher.Constraint("Diameter", 0, Q("16 mm")))
sketch21.addConstraint(Sketcher.Constraint("Diameter", 1, Q("15 mm")))
sketch21.addConstraint(Sketcher.Constraint("DistanceX", 0, 3, -1, 1, Q("36 mm")))
pad8 = body.newObject("PartDesign::Pad", "Pad007")
pad8.Profile = sketch21
pad8.Length = 4

doc.recompute()
